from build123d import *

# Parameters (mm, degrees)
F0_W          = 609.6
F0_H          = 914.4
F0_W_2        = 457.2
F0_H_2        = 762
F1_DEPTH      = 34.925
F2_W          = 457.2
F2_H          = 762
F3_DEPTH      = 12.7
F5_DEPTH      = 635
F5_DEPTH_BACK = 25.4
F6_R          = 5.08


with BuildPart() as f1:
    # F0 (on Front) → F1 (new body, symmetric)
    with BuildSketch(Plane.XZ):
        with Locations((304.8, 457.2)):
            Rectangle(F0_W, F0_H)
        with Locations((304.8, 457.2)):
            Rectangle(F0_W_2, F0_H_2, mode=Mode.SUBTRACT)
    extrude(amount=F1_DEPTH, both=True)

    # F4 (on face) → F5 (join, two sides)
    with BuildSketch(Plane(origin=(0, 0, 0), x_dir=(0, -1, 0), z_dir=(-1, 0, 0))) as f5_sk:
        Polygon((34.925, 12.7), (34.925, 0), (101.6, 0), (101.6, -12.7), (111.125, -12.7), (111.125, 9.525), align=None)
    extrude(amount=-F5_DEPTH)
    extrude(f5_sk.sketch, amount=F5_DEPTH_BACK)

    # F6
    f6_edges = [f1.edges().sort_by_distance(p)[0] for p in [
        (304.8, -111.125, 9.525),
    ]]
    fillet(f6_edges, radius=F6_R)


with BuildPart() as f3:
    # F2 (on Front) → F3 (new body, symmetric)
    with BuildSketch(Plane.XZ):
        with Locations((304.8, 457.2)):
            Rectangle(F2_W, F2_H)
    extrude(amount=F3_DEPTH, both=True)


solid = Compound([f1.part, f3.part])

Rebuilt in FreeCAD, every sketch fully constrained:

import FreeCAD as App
import Part
import Sketcher
Q = App.Units.Quantity


def edges_at(feature, points):
    """Names of the edges that pass closest to the given points."""
    edges = feature.Shape.Edges
    near = lambda p: min(range(len(edges)), key=lambda i: edges[i].distToShape(Part.Vertex(*p))[0])
    return sorted({f"Edge{near(p) + 1}" for p in points})

doc = App.newDocument("Part")
params = doc.addObject("Spreadsheet::Sheet", "Params")
for row, (alias, value) in enumerate([
    ("sketch1_width", "24 in"),
    ("sketch1_width2", "18 in"),
    ("sketch1_height", "36 in"),
    ("sketch1_height2", "30 in"),
    ("pad1_length", "2.75 in"),
    ("sketch2_height", "0.5 in"),
    ("sketch2_width", "2.625 in"),
    ("sketch2_height2", "0.875 in"),
    ("pad2_length", "25 in"),
    ("pad2_length2", "1 in"),
    ("fillet_radius", "0.2 in"),
    ("sketch3_width", "18 in"),
    ("sketch3_height", "30 in"),
    ("pad3_length", "1 in"),
], start=1):
    params.set(f"A{row}", alias)
    params.set(f"B{row}", "=" + value)
    params.setAlias(f"B{row}", alias)

body = doc.addObject("PartDesign::Body", "Body")

sketch1 = doc.addObject("Sketcher::SketchObject", "Sketch")
body.addObject(sketch1)
sketch1.AttachmentSupport = (doc.XZ_Plane, [""])
sketch1.MapMode = "FlatFace"
sketch1.addGeometry([
    Part.LineSegment(App.Vector(0, 914.4, 0), App.Vector(0, 0, 0)),
    Part.LineSegment(App.Vector(0, 0, 0), App.Vector(609.6, 0, 0)),
    Part.LineSegment(App.Vector(609.6, 0, 0), App.Vector(609.6, 914.4, 0)),
    Part.LineSegment(App.Vector(609.6, 914.4, 0), App.Vector(0, 914.4, 0)),
    Part.LineSegment(App.Vector(533.4, 76.2, 0), App.Vector(76.2, 76.2, 0)),
    Part.LineSegment(App.Vector(76.2, 76.2, 0), App.Vector(76.2, 838.2, 0)),
    Part.LineSegment(App.Vector(76.2, 838.2, 0), App.Vector(533.4, 838.2, 0)),
    Part.LineSegment(App.Vector(533.4, 838.2, 0), App.Vector(533.4, 76.2, 0)),
], False)
sketch1.addConstraint([
    Sketcher.Constraint("Coincident", 0, 2, 1, 1),
    Sketcher.Constraint("Coincident", 1, 2, 2, 1),
    Sketcher.Constraint("Coincident", 2, 2, 3, 1),
    Sketcher.Constraint("Coincident", 3, 2, 0, 1),
    Sketcher.Constraint("Coincident", 4, 2, 5, 1),
    Sketcher.Constraint("Coincident", 5, 2, 6, 1),
    Sketcher.Constraint("Coincident", 6, 2, 7, 1),
    Sketcher.Constraint("Coincident", 7, 2, 4, 1),
    Sketcher.Constraint("Vertical", 0),
    Sketcher.Constraint("Horizontal", 1),
    Sketcher.Constraint("Vertical", 2),
    Sketcher.Constraint("Horizontal", 3),
    Sketcher.Constraint("Horizontal", 4),
    Sketcher.Constraint("Vertical", 5),
    Sketcher.Constraint("Horizontal", 6),
    Sketcher.Constraint("Vertical", 7),
    Sketcher.Constraint("Coincident", 0, 2, -1, 1),
    Sketcher.Constraint("DistanceX", 1, 1, 1, 2, Q("24 in")),
    Sketcher.Constraint("DistanceX", 4, 2, 4, 1, Q("18 in")),
    Sketcher.Constraint("DistanceY", 0, 2, 0, 1, Q("36 in")),
    Sketcher.Constraint("DistanceY", 5, 1, 5, 2, Q("30 in")),
    Sketcher.Constraint("DistanceX", -1, 1, 4, 2, Q("3 in")),
    Sketcher.Constraint("DistanceY", -1, 1, 4, 2, Q("3 in")),
])
sketch1.setExpression("Constraints[17]", "Params.sketch1_width")
sketch1.setExpression("Constraints[18]", "Params.sketch1_width2")
sketch1.setExpression("Constraints[19]", "Params.sketch1_height")
sketch1.setExpression("Constraints[20]", "Params.sketch1_height2")
pad1 = doc.addObject("PartDesign::Pad", "Pad")
body.addObject(pad1)
pad1.Profile = sketch1
pad1.setExpression("Length", "Params.pad1_length")
pad1.Midplane = True

sketch2 = doc.addObject("Sketcher::SketchObject", "Sketch001")
body.addObject(sketch2)
sketch2.AttachmentSupport = (doc.YZ_Plane, [""])
sketch2.MapMode = "FlatFace"
sketch2.addGeometry([
    Part.LineSegment(App.Vector(-34.925, 12.7, 0), App.Vector(-34.925, 0, 0)),
    Part.LineSegment(App.Vector(-34.925, 0, 0), App.Vector(-101.6, 0, 0)),
    Part.LineSegment(App.Vector(-101.6, 0, 0), App.Vector(-101.6, -12.7, 0)),
    Part.LineSegment(App.Vector(-101.6, -12.7, 0), App.Vector(-111.125, -12.7, 0)),
    Part.LineSegment(App.Vector(-111.125, -12.7, 0), App.Vector(-111.125, 9.525, 0)),
    Part.LineSegment(App.Vector(-111.125, 9.525, 0), App.Vector(-34.925, 12.7, 0)),
], False)
sketch2.addConstraint([
    Sketcher.Constraint("Coincident", 0, 2, 1, 1),
    Sketcher.Constraint("Coincident", 1, 2, 2, 1),
    Sketcher.Constraint("Coincident", 2, 2, 3, 1),
    Sketcher.Constraint("Coincident", 3, 2, 4, 1),
    Sketcher.Constraint("Coincident", 4, 2, 5, 1),
    Sketcher.Constraint("Coincident", 5, 2, 0, 1),
    Sketcher.Constraint("Vertical", 0),
    Sketcher.Constraint("Horizontal", 1),
    Sketcher.Constraint("Vertical", 2),
    Sketcher.Constraint("Horizontal", 3),
    Sketcher.Constraint("Vertical", 4),
    Sketcher.Constraint("PointOnObject", 0, 2, -1),
    Sketcher.Constraint("Equal", 0, 2),
    Sketcher.Constraint("DistanceY", 0, 2, 0, 1, Q("0.5 in")),
    Sketcher.Constraint("DistanceX", 1, 2, -1, 1, Q("4 in")),
    Sketcher.Constraint("DistanceX", 3, 2, 0, 2, Q("3 in")),
    Sketcher.Constraint("DistanceX", 1, 2, 1, 1, Q("2.625 in")),
    Sketcher.Constraint("DistanceY", 4, 1, 4, 2, Q("0.875 in")),
])
sketch2.setExpression("Constraints[13]", "Params.sketch2_height")
sketch2.setExpression("Constraints[16]", "Params.sketch2_width")
sketch2.setExpression("Constraints[17]", "Params.sketch2_height2")
pad2 = doc.addObject("PartDesign::Pad", "Pad001")
body.addObject(pad2)
pad2.Profile = sketch2
pad2.Type = "TwoLengths"
pad2.setExpression("Length", "Params.pad2_length")
pad2.setExpression("Length2", "Params.pad2_length2")
doc.recompute()

fillet = doc.addObject("PartDesign::Fillet", "Fillet")
body.addObject(fillet)
fillet.Base = (pad2, edges_at(pad2, [(304.8, -111.125, 9.525)]))
fillet.setExpression("Radius", "Params.fillet_radius")
body2 = doc.addObject("PartDesign::Body", "Body001")

sketch3 = doc.addObject("Sketcher::SketchObject", "Sketch002")
body2.addObject(sketch3)
sketch3.AttachmentSupport = (doc.getObject("XZ_Plane001"), [""])
sketch3.MapMode = "FlatFace"
sketch3.addGeometry([
    Part.LineSegment(App.Vector(76.2, 838.2, 0), App.Vector(76.2, 76.2, 0)),
    Part.LineSegment(App.Vector(76.2, 76.2, 0), App.Vector(533.4, 76.2, 0)),
    Part.LineSegment(App.Vector(533.4, 76.2, 0), App.Vector(533.4, 838.2, 0)),
    Part.LineSegment(App.Vector(533.4, 838.2, 0), App.Vector(76.2, 838.2, 0)),
], False)
sketch3.addConstraint([
    Sketcher.Constraint("Coincident", 0, 2, 1, 1),
    Sketcher.Constraint("Coincident", 1, 2, 2, 1),
    Sketcher.Constraint("Coincident", 2, 2, 3, 1),
    Sketcher.Constraint("Coincident", 3, 2, 0, 1),
    Sketcher.Constraint("Vertical", 0),
    Sketcher.Constraint("Horizontal", 1),
    Sketcher.Constraint("Vertical", 2),
    Sketcher.Constraint("Horizontal", 3),
    Sketcher.Constraint("DistanceX", 1, 1, 1, 2, Q("18 in")),
    Sketcher.Constraint("DistanceY", 0, 2, 0, 1, Q("30 in")),
    Sketcher.Constraint("DistanceX", -1, 1, 0, 2, Q("3 in")),
    Sketcher.Constraint("DistanceY", -1, 1, 0, 2, Q("3 in")),
])
sketch3.setExpression("Constraints[8]", "Params.sketch3_width")
sketch3.setExpression("Constraints[9]", "Params.sketch3_height")
pad3 = doc.addObject("PartDesign::Pad", "Pad002")
body2.addObject(pad3)
pad3.Profile = sketch3
pad3.setExpression("Length", "Params.pad3_length")
pad3.Midplane = True

doc.recompute()
